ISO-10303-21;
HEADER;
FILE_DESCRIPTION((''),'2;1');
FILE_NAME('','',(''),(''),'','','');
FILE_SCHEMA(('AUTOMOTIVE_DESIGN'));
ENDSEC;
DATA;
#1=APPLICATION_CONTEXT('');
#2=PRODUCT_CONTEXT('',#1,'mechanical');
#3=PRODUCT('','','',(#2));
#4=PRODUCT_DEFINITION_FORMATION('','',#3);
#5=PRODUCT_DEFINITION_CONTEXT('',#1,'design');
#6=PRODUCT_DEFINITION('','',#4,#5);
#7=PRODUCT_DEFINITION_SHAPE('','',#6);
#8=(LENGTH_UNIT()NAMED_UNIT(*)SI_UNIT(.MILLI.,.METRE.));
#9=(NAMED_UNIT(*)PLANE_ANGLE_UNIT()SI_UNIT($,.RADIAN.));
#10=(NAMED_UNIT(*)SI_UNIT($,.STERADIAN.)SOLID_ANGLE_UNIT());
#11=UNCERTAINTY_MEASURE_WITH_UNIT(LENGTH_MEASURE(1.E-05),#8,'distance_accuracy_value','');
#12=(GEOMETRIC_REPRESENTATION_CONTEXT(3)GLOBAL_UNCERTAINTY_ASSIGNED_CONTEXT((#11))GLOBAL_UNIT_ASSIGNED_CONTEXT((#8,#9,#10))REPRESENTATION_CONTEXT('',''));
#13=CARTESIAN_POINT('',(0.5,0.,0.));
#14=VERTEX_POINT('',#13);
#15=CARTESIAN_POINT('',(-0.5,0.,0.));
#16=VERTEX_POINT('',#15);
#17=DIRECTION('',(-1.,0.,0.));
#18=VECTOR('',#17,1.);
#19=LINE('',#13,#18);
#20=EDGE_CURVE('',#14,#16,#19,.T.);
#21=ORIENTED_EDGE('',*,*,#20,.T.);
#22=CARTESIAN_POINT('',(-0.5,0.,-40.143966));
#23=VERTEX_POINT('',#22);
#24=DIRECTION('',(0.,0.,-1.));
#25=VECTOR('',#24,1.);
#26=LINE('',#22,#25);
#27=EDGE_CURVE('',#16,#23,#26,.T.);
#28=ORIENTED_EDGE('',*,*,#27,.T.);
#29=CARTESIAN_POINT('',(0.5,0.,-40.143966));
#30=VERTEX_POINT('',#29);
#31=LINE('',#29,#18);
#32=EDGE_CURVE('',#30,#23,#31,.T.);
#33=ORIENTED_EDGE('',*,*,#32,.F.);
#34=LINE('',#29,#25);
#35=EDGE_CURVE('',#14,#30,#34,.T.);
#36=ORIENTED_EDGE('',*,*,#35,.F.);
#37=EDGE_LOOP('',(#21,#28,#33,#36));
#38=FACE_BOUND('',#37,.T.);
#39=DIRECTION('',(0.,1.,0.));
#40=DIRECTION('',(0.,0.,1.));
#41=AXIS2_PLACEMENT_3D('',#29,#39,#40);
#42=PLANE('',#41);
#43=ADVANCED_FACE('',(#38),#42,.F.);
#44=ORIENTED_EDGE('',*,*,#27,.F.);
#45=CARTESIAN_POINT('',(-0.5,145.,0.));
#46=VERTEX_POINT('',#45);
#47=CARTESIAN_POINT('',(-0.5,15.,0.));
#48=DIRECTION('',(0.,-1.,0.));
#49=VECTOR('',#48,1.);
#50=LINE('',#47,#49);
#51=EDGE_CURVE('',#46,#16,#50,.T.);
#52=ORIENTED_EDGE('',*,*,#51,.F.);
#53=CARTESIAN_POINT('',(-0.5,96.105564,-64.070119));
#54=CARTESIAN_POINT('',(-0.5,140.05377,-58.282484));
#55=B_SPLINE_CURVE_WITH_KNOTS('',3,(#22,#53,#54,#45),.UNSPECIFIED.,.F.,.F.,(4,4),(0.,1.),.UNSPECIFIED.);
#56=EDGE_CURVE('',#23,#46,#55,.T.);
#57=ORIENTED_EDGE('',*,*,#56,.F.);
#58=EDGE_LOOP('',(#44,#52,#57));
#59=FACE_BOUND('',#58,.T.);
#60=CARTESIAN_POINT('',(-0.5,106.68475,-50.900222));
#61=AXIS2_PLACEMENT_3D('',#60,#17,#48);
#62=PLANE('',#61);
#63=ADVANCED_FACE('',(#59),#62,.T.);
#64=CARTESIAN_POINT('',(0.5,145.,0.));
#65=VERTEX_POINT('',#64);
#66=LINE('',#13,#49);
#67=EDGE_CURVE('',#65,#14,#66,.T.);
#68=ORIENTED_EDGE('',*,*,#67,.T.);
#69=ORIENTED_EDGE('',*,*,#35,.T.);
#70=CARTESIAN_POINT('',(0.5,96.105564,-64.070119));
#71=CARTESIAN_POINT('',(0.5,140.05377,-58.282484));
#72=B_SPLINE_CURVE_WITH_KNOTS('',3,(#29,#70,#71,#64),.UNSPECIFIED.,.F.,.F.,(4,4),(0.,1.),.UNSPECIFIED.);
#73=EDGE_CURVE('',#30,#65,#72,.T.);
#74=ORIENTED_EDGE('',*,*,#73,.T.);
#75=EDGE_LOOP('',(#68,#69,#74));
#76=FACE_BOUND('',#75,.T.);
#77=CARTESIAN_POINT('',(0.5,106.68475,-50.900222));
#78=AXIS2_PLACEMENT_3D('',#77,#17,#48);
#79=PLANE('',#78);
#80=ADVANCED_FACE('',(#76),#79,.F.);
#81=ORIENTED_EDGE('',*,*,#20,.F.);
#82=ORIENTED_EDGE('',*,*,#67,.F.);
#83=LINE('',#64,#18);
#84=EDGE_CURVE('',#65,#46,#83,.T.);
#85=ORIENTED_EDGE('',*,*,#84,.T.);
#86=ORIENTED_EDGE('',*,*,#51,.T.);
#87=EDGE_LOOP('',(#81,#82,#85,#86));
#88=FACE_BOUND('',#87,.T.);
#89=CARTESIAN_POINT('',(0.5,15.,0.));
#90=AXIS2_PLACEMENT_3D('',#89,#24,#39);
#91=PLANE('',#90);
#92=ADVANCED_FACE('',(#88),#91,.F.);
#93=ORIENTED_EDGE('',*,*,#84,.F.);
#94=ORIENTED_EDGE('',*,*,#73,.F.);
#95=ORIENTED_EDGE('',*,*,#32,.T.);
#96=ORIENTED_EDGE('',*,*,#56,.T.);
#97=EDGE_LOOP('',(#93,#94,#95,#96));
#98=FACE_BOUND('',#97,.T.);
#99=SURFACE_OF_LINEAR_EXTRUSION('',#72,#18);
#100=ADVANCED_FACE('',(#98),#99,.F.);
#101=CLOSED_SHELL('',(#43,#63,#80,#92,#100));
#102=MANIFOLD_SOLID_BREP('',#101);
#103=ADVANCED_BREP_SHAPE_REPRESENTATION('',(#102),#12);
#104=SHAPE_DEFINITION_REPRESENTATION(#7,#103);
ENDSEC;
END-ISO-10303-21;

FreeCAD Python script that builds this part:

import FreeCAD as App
import Part
import Sketcher

V = App.Vector

doc = App.newDocument("Part")
body = doc.addObject("PartDesign::Body", "Body")

# Sketch on XY plane
sketch1 = body.newObject("Sketcher::SketchObject", "Sketch")
sketch1.AttachmentSupport = (doc.getObject("XY_Plane"), [""])
sketch1.MapMode = "FlatFace"
sketch1.addGeometry([
    Part.BSplineCurve([V(0, -40.143966, 0), V(96.105564, -64.070119, 0), V(140.05377, -58.282484, 0), V(145, 0, 0)], [4, 4], [0, 1], False, 3, [1, 1, 1, 1], False),
    Part.LineSegment(V(145, 0, 0), V(0, 0, 0)),
    Part.LineSegment(V(0, 0, 0), V(0, -40.143966, 0)),
], False)
sketch1.addConstraint([
    Sketcher.Constraint("Block", 0),
    Sketcher.Constraint("Coincident", 0, 2, 1, 1),
    Sketcher.Constraint("Coincident", 1, 2, 2, 1),
    Sketcher.Constraint("Coincident", 2, 2, 0, 1),
    Sketcher.Constraint("Horizontal", 1),
    Sketcher.Constraint("Vertical", 2),
])
pad1 = body.newObject("PartDesign::Pad", "Pad")
pad1.Profile = sketch1
pad1.Length = 1
pad1.Midplane = True
body2 = doc.addObject("PartDesign::Body", "Body001")
doc.recompute()

body.Placement = App.Placement(V(0, 0, 0), App.Rotation(V(0, 1, 0), 180))
boolean = body2.newObject("PartDesign::Boolean", "Boolean")
boolean.Type = "Fuse"
boolean.addObjects([body])
body3 = doc.addObject("PartDesign::Body", "Body002")
doc.recompute()

body2.Placement = App.Placement(V(0, 0, 0), App.Rotation(V(0, 0, -1), 90))
boolean2 = body3.newObject("PartDesign::Boolean", "Boolean001")
boolean2.Type = "Fuse"
boolean2.addObjects([body2])
body4 = doc.addObject("PartDesign::Body", "Body003")
doc.recompute()

body3.Placement = App.Placement(V(0, 0, 0), App.Rotation(V(0, -1, 0), 90))
boolean3 = body4.newObject("PartDesign::Boolean", "Boolean002")
boolean3.Type = "Fuse"
boolean3.addObjects([body3])

doc.recompute()
